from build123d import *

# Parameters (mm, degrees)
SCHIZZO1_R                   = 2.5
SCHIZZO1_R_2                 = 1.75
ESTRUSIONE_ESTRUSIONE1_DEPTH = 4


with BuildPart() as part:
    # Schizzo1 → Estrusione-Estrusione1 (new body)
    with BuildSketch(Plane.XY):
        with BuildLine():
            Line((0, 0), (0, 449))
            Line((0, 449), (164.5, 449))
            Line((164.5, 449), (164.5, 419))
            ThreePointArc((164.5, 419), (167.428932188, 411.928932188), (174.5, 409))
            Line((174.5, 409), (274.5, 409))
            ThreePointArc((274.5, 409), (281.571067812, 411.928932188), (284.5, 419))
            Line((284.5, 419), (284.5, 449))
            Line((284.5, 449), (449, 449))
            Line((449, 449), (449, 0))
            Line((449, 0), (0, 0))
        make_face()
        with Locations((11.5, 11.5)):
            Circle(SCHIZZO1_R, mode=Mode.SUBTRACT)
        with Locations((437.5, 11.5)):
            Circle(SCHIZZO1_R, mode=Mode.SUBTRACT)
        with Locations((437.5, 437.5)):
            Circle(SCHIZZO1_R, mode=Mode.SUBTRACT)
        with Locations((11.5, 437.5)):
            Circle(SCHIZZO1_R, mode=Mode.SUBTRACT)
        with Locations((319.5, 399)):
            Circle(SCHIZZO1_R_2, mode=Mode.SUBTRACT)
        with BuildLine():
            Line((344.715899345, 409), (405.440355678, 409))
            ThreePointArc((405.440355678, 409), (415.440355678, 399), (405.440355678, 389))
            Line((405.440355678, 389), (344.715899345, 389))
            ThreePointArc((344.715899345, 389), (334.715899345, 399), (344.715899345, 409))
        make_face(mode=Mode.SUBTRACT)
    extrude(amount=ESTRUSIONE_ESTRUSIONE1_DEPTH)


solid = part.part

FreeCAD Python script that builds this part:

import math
import FreeCAD as App
import Part
import Sketcher

V = App.Vector

doc = App.newDocument("Part")
body = doc.addObject("PartDesign::Body", "Body")

sketch1 = body.newObject("Sketcher::SketchObject", "Sketch")
sketch1.AttachmentSupport = (doc.getObject("XY_Plane"), [""])
sketch1.MapMode = "FlatFace"
sketch1.addGeometry([
    Part.LineSegment(V(0, 449, 0), V(0, 0, 0)),
    Part.LineSegment(V(0, 0, 0), V(449, 0, 0)),
    Part.LineSegment(V(449, 0, 0), V(449, 449, 0)),
    Part.LineSegment(V(449, 449, 0), V(284.5, 449, 0)),
    Part.LineSegment(V(284.5, 449, 0), V(284.5, 419, 0)),
    Part.ArcOfCircle(Part.Circle(V(274.5, 419, 0), V(0, 0, 1), 10), math.radians(-90), math.radians(0)),
    Part.LineSegment(V(274.5, 409, 0), V(174.5, 409, 0)),
    Part.ArcOfCircle(Part.Circle(V(174.5, 419, 0), V(0, 0, 1), 10), math.radians(180), math.radians(270)),
    Part.LineSegment(V(164.5, 419, 0), V(164.5, 449, 0)),
    Part.LineSegment(V(164.5, 449, 0), V(0, 449, 0)),
    Part.Circle(V(437.5, 11.5, 0), V(0, 0, 1), 2.5),
    Part.Circle(V(11.5, 11.5, 0), V(0, 0, 1), 2.5),
    Part.Circle(V(437.5, 437.5, 0), V(0, 0, 1), 2.5),
    Part.LineSegment(V(344.7, 409, 0), V(405.4, 409, 0)),
    Part.ArcOfCircle(Part.Circle(V(405.4, 399, 0), V(0, 0, 1), 10), math.radians(-90), math.radians(90)),
    Part.LineSegment(V(405.4, 389, 0), V(344.7, 389, 0)),
    Part.ArcOfCircle(Part.Circle(V(344.7, 399, 0), V(0, 0, 1), 10), math.radians(90), math.radians(270)),
    Part.Circle(V(319.5, 399, 0), V(0, 0, 1), 1.8),
    Part.Circle(V(11.5, 437.5, 0), V(0, 0, 1), 2.5),
], False)
sketch1.addConstraint([
    Sketcher.Constraint("Coincident", 0, 2, 1, 1),
    Sketcher.Constraint("Coincident", 1, 2, 2, 1),
    Sketcher.Constraint("Coincident", 2, 2, 3, 1),
    Sketcher.Constraint("Coincident", 3, 2, 4, 1),
    Sketcher.Constraint("Tangent", 4, 2, 5, 2),
    Sketcher.Constraint("Tangent", 5, 1, 6, 1),
    Sketcher.Constraint("Tangent", 6, 2, 7, 2),
    Sketcher.Constraint("Tangent", 7, 1, 8, 1),
    Sketcher.Constraint("Coincident", 8, 2, 9, 1),
    Sketcher.Constraint("Coincident", 9, 2, 0, 1),
    Sketcher.Constraint("Tangent", 13, 2, 14, 2),
    Sketcher.Constraint("Tangent", 14, 1, 15, 1),
    Sketcher.Constraint("Tangent", 15, 2, 16, 2),
    Sketcher.Constraint("Tangent", 16, 1, 13, 1),
    Sketcher.Constraint("Vertical", 0),
    Sketcher.Constraint("Horizontal", 1),
    Sketcher.Constraint("Vertical", 2),
    Sketcher.Constraint("Horizontal", 3),
    Sketcher.Constraint("Vertical", 4),
    Sketcher.Constraint("Horizontal", 6),
    Sketcher.Constraint("Vertical", 8),
    Sketcher.Constraint("Horizontal", 9),
    Sketcher.Constraint("Horizontal", 13),
    Sketcher.Constraint("Horizontal", 15),
    Sketcher.Constraint("Coincident", 0, 2, -1, 1),
    Sketcher.Constraint("Equal", 5, 7),
    Sketcher.Constraint("Equal", 10, 11),
    Sketcher.Constraint("Equal", 11, 12),
    Sketcher.Constraint("Equal", 7, 14),
    Sketcher.Constraint("Equal", 12, 18),
    Sketcher.Constraint("Horizontal", 10, 3, 11, 3),
    Sketcher.Constraint("Horizontal", 16, 3, 17, 3),
    Sketcher.Constraint("Horizontal", 12, 3, 18, 3),
    Sketcher.Constraint("Horizontal", 3, 2, 8, 2),
    Sketcher.Constraint("Horizontal", 6, 2, 13, 2),
    Sketcher.Constraint("Vertical", 10, 3, 12, 3),
    Sketcher.Constraint("Vertical", 11, 3, 18, 3),
    Sketcher.Constraint("Equal", 3, 9),
    Sketcher.Constraint("Equal", 1, 0),
    Sketcher.Constraint("Diameter", 10, 5.0),
    Sketcher.Constraint("Radius", 5, 10.0),
    Sketcher.Constraint("Diameter", 17, 3.5),
    Sketcher.Constraint("DistanceX", 1, 1, 1, 2, 449.0),
    Sketcher.Constraint("DistanceX", 6, 2, 6, 1, 100.0),
    Sketcher.Constraint("DistanceY", 4, 2, 4, 1, 30.0),
    Sketcher.Constraint("DistanceX", 5, 3, 10, 3, 163.0),
    Sketcher.Constraint("DistanceX", 11, 3, 10, 3, 426.0),
    Sketcher.Constraint("DistanceY", 10, 3, 12, 3, 426.0),
    Sketcher.Constraint("DistanceX", 5, 3, 17, 3, 45.0),
    Sketcher.Constraint("DistanceY", -1, 1, 10, 3, 11.5),
    Sketcher.Constraint("DistanceX", -1, 1, 16, 3, 344.715899),
    Sketcher.Constraint("DistanceX", 13, 1, 13, 2, 60.724456),
])
pad1 = body.newObject("PartDesign::Pad", "Pad")
pad1.Profile = sketch1
pad1.Length = 4

doc.recompute()
